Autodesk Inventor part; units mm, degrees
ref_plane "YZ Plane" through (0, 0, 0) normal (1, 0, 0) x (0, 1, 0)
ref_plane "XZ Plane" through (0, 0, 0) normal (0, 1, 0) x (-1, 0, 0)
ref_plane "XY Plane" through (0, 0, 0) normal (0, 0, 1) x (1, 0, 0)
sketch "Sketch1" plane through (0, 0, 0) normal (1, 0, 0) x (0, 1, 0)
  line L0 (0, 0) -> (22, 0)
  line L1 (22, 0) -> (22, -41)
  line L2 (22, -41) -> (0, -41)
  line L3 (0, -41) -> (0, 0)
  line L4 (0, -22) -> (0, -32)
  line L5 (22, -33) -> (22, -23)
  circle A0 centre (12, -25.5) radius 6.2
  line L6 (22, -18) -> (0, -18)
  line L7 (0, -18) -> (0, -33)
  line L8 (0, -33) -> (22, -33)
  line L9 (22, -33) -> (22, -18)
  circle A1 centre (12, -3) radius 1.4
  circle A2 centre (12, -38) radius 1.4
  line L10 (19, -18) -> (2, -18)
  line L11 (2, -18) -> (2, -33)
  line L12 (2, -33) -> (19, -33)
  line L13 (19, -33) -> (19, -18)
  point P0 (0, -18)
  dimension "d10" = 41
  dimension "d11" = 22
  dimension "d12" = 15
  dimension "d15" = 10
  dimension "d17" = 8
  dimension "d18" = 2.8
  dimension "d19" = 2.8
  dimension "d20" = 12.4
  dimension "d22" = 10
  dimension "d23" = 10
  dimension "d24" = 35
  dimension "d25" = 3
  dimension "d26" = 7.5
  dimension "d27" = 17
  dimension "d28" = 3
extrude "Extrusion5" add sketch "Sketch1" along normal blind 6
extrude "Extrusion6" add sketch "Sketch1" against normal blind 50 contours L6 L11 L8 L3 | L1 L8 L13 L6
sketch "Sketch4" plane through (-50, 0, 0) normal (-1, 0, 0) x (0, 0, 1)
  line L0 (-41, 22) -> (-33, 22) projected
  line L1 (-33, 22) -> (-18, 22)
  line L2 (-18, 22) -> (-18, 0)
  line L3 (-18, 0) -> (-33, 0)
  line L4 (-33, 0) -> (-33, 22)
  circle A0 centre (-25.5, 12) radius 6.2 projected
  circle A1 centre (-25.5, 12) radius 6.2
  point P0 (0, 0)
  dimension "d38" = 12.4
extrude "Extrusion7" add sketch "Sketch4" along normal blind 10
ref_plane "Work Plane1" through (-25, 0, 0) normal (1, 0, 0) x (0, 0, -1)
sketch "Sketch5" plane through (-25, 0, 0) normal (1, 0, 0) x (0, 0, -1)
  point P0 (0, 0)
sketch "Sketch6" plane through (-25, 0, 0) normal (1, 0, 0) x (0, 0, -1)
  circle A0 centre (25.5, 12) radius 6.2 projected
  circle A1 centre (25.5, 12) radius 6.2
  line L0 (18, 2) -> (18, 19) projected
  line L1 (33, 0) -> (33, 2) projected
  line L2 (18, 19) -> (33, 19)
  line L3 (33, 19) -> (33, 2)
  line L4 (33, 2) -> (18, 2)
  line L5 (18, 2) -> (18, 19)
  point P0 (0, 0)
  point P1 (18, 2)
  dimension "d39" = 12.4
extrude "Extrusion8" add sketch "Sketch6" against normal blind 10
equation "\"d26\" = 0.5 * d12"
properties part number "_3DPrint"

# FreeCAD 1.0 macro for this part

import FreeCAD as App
import Part
import Sketcher
from FreeCAD import Vector

doc = App.newDocument("Part")
body = doc.addObject("PartDesign::Body", "Body")

# Sketch on YZ plane
sketch1 = body.newObject("Sketcher::SketchObject", "Sketch")
sketch1.AttachmentSupport = (doc.getObject("YZ_Plane"), [""])
sketch1.MapMode = "FlatFace"
sketch1.addGeometry(Part.LineSegment(Vector(22, 0, 0), Vector(0, 0, 0)), False)
sketch1.addGeometry(Part.LineSegment(Vector(0, 0, 0), Vector(0, -41, 0)), False)
sketch1.addGeometry(Part.LineSegment(Vector(0, -41, 0), Vector(22, -41, 0)), False)
sketch1.addGeometry(Part.LineSegment(Vector(22, -41, 0), Vector(22, 0, 0)), False)
sketch1.addGeometry(Part.Circle(Vector(12, -3, 0), Vector(0, 0, 1), 1.4), False)
sketch1.addGeometry(Part.Circle(Vector(12, -25.5, 0), Vector(0, 0, 1), 6.2), False)
sketch1.addGeometry(Part.Circle(Vector(12, -38, 0), Vector(0, 0, 1), 1.4), False)
sketch1.addConstraint(Sketcher.Constraint("Coincident", 0, 2, 1, 1))
sketch1.addConstraint(Sketcher.Constraint("Coincident", 1, 2, 2, 1))
sketch1.addConstraint(Sketcher.Constraint("Coincident", 2, 2, 3, 1))
sketch1.addConstraint(Sketcher.Constraint("Coincident", 3, 2, 0, 1))
sketch1.addConstraint(Sketcher.Constraint("Horizontal", 0))
sketch1.addConstraint(Sketcher.Constraint("Vertical", 1))
sketch1.addConstraint(Sketcher.Constraint("Horizontal", 2))
sketch1.addConstraint(Sketcher.Constraint("Vertical", 3))
sketch1.addConstraint(Sketcher.Constraint("Coincident", 0, 2, -1, 1))
sketch1.addConstraint(Sketcher.Constraint("Equal", 4, 6))
sketch1.addConstraint(Sketcher.Constraint("Vertical", 4, 3, 5, 3))
sketch1.addConstraint(Sketcher.Constraint("Vertical", 5, 3, 6, 3))
sketch1.addConstraint(Sketcher.Constraint("Diameter", 4, 2.8))
sketch1.addConstraint(Sketcher.Constraint("Diameter", 5, 12.4))
sketch1.addConstraint(Sketcher.Constraint("DistanceX", 0, 2, 0, 1, 22.0))
sketch1.addConstraint(Sketcher.Constraint("DistanceY", 1, 2, 1, 1, 41.0))
sketch1.addConstraint(Sketcher.Constraint("DistanceY", 4, 3, -1, 1, 3.0))
sketch1.addConstraint(Sketcher.Constraint("DistanceY", 6, 3, 4, 3, 35.0))
sketch1.addConstraint(Sketcher.Constraint("DistanceX", 6, 3, 2, 2, 10.0))
sketch1.addConstraint(Sketcher.Constraint("DistanceY", 5, 3, -1, 1, 25.5))
pad1 = body.newObject("PartDesign::Pad", "Pad")
pad1.Profile = sketch1
pad1.Length = 6

# Sketch on YZ plane
sketch2 = body.newObject("Sketcher::SketchObject", "Sketch001")
sketch2.AttachmentSupport = (doc.getObject("YZ_Plane"), [""])
sketch2.MapMode = "FlatFace"
sketch2.addGeometry(Part.LineSegment(Vector(2, -18, 0), Vector(0, -18, 0)), False)
sketch2.addGeometry(Part.LineSegment(Vector(0, -18, 0), Vector(0, -33, 0)), False)
sketch2.addGeometry(Part.LineSegment(Vector(0, -33, 0), Vector(2, -33, 0)), False)
sketch2.addGeometry(Part.LineSegment(Vector(2, -33, 0), Vector(2, -18, 0)), False)
sketch2.addGeometry(Part.LineSegment(Vector(22, -33, 0), Vector(22, -18, 0)), False)
sketch2.addGeometry(Part.LineSegment(Vector(22, -18, 0), Vector(19, -18, 0)), False)
sketch2.addGeometry(Part.LineSegment(Vector(19, -18, 0), Vector(19, -33, 0)), False)
sketch2.addGeometry(Part.LineSegment(Vector(19, -33, 0), Vector(22, -33, 0)), False)
sketch2.addConstraint(Sketcher.Constraint("Coincident", 0, 2, 1, 1))
sketch2.addConstraint(Sketcher.Constraint("Coincident", 1, 2, 2, 1))
sketch2.addConstraint(Sketcher.Constraint("Coincident", 2, 2, 3, 1))
sketch2.addConstraint(Sketcher.Constraint("Coincident", 3, 2, 0, 1))
sketch2.addConstraint(Sketcher.Constraint("Coincident", 4, 2, 5, 1))
sketch2.addConstraint(Sketcher.Constraint("Coincident", 5, 2, 6, 1))
sketch2.addConstraint(Sketcher.Constraint("Coincident", 6, 2, 7, 1))
sketch2.addConstraint(Sketcher.Constraint("Coincident", 7, 2, 4, 1))
sketch2.addConstraint(Sketcher.Constraint("Horizontal", 0))
sketch2.addConstraint(Sketcher.Constraint("Vertical", 1))
sketch2.addConstraint(Sketcher.Constraint("Horizontal", 2))
sketch2.addConstraint(Sketcher.Constraint("Vertical", 3))
sketch2.addConstraint(Sketcher.Constraint("Vertical", 4))
sketch2.addConstraint(Sketcher.Constraint("Horizontal", 5))
sketch2.addConstraint(Sketcher.Constraint("Vertical", 6))
sketch2.addConstraint(Sketcher.Constraint("Horizontal", 7))
sketch2.addConstraint(Sketcher.Constraint("PointOnObject", 0, 2, -2))
sketch2.addConstraint(Sketcher.Constraint("Horizontal", 3, 2, 4, 2))
sketch2.addConstraint(Sketcher.Constraint("Horizontal", 2, 2, 6, 2))
sketch2.addConstraint(Sketcher.Constraint("DistanceX", 5, 2, 5, 1, 3.0))
sketch2.addConstraint(Sketcher.Constraint("DistanceY", 1, 2, 1, 1, 15.0))
sketch2.addConstraint(Sketcher.Constraint("DistanceX", -1, 1, 4, 2, 22.0))
sketch2.addConstraint(Sketcher.Constraint("DistanceX", 3, 2, 5, 2, 17.0))
sketch2.addConstraint(Sketcher.Constraint("DistanceY", 0, 2, -1, 1, 18.0))
pad2 = body.newObject("PartDesign::Pad", "Pad001")
pad2.Profile = sketch2
pad2.Length = 50
pad2.Reversed = True

# Sketch on YZ plane
sketch3 = body.newObject("Sketcher::SketchObject", "Sketch002")
sketch3.AttachmentSupport = (doc.getObject("YZ_Plane"), [""])
sketch3.MapMode = "FlatFace"
sketch3.AttachmentOffset = App.Placement(Vector(0, 0, -50), App.Rotation())
sketch3.addGeometry(Part.LineSegment(Vector(22, -18, 0), Vector(22, -33, 0)), False)
sketch3.addGeometry(Part.LineSegment(Vector(22, -33, 0), Vector(0, -33, 0)), False)
sketch3.addGeometry(Part.LineSegment(Vector(0, -33, 0), Vector(0, -18, 0)), False)
sketch3.addGeometry(Part.LineSegment(Vector(0, -18, 0), Vector(22, -18, 0)), False)
sketch3.addGeometry(Part.Circle(Vector(12, -26, 0), Vector(0, 0, 1), 6), False)
sketch3.addConstraint(Sketcher.Constraint("Coincident", 0, 2, 1, 1))
sketch3.addConstraint(Sketcher.Constraint("Coincident", 1, 2, 2, 1))
sketch3.addConstraint(Sketcher.Constraint("Coincident", 2, 2, 3, 1))
sketch3.addConstraint(Sketcher.Constraint("Coincident", 3, 2, 0, 1))
sketch3.addConstraint(Sketcher.Constraint("Vertical", 0))
sketch3.addConstraint(Sketcher.Constraint("Horizontal", 1))
sketch3.addConstraint(Sketcher.Constraint("Vertical", 2))
sketch3.addConstraint(Sketcher.Constraint("Horizontal", 3))
sketch3.addConstraint(Sketcher.Constraint("PointOnObject", 1, 2, -2))
sketch3.addConstraint(Sketcher.Constraint("Diameter", 4, 12.4))
sketch3.addConstraint(Sketcher.Constraint("DistanceX", 1, 2, 1, 1, 22.0))
sketch3.addConstraint(Sketcher.Constraint("DistanceY", 0, 2, 0, 1, 15.0))
sketch3.addConstraint(Sketcher.Constraint("DistanceX", -1, 1, 4, 3, 12.0))
sketch3.addConstraint(Sketcher.Constraint("DistanceY", 0, 2, -1, 1, 33.0))
sketch3.addConstraint(Sketcher.Constraint("DistanceY", 4, 3, -1, 1, 25.5))
pad3 = body.newObject("PartDesign::Pad", "Pad002")
pad3.Profile = sketch3
pad3.Length = 10
pad3.Reversed = True

# Sketch on YZ plane
sketch4 = body.newObject("Sketcher::SketchObject", "Sketch003")
sketch4.AttachmentSupport = (doc.getObject("YZ_Plane"), [""])
sketch4.MapMode = "FlatFace"
sketch4.AttachmentOffset = App.Placement(Vector(0, 0, -25), App.Rotation())
sketch4.addGeometry(Part.LineSegment(Vector(19, -18, 0), Vector(2, -18, 0)), False)
sketch4.addGeometry(Part.LineSegment(Vector(2, -18, 0), Vector(2, -33, 0)), False)
sketch4.addGeometry(Part.LineSegment(Vector(2, -33, 0), Vector(19, -33, 0)), False)
sketch4.addGeometry(Part.LineSegment(Vector(19, -33, 0), Vector(19, -18, 0)), False)
sketch4.addGeometry(Part.Circle(Vector(12, -26, 0), Vector(0, 0, 1), 6), False)
sketch4.addConstraint(Sketcher.Constraint("Coincident", 0, 2, 1, 1))
sketch4.addConstraint(Sketcher.Constraint("Coincident", 1, 2, 2, 1))
sketch4.addConstraint(Sketcher.Constraint("Coincident", 2, 2, 3, 1))
sketch4.addConstraint(Sketcher.Constraint("Coincident", 3, 2, 0, 1))
sketch4.addConstraint(Sketcher.Constraint("Horizontal", 0))
sketch4.addConstraint(Sketcher.Constraint("Vertical", 1))
sketch4.addConstraint(Sketcher.Constraint("Horizontal", 2))
sketch4.addConstraint(Sketcher.Constraint("Vertical", 3))
sketch4.addConstraint(Sketcher.Constraint("Diameter", 4, 12.4))
sketch4.addConstraint(Sketcher.Constraint("DistanceX", 0, 2, 0, 1, 17.0))
sketch4.addConstraint(Sketcher.Constraint("DistanceY", 1, 2, 1, 1, 15.0))
sketch4.addConstraint(Sketcher.Constraint("DistanceX", -1, 1, 4, 3, 12.0))
sketch4.addConstraint(Sketcher.Constraint("DistanceX", -1, 1, 0, 2, 2.0))
sketch4.addConstraint(Sketcher.Constraint("DistanceY", 0, 2, -1, 1, 18.0))
sketch4.addConstraint(Sketcher.Constraint("DistanceY", 4, 3, -1, 1, 25.5))
pad4 = body.newObject("PartDesign::Pad", "Pad003")
pad4.Profile = sketch4
pad4.Length = 10
pad4.Reversed = True

doc.recompute()
